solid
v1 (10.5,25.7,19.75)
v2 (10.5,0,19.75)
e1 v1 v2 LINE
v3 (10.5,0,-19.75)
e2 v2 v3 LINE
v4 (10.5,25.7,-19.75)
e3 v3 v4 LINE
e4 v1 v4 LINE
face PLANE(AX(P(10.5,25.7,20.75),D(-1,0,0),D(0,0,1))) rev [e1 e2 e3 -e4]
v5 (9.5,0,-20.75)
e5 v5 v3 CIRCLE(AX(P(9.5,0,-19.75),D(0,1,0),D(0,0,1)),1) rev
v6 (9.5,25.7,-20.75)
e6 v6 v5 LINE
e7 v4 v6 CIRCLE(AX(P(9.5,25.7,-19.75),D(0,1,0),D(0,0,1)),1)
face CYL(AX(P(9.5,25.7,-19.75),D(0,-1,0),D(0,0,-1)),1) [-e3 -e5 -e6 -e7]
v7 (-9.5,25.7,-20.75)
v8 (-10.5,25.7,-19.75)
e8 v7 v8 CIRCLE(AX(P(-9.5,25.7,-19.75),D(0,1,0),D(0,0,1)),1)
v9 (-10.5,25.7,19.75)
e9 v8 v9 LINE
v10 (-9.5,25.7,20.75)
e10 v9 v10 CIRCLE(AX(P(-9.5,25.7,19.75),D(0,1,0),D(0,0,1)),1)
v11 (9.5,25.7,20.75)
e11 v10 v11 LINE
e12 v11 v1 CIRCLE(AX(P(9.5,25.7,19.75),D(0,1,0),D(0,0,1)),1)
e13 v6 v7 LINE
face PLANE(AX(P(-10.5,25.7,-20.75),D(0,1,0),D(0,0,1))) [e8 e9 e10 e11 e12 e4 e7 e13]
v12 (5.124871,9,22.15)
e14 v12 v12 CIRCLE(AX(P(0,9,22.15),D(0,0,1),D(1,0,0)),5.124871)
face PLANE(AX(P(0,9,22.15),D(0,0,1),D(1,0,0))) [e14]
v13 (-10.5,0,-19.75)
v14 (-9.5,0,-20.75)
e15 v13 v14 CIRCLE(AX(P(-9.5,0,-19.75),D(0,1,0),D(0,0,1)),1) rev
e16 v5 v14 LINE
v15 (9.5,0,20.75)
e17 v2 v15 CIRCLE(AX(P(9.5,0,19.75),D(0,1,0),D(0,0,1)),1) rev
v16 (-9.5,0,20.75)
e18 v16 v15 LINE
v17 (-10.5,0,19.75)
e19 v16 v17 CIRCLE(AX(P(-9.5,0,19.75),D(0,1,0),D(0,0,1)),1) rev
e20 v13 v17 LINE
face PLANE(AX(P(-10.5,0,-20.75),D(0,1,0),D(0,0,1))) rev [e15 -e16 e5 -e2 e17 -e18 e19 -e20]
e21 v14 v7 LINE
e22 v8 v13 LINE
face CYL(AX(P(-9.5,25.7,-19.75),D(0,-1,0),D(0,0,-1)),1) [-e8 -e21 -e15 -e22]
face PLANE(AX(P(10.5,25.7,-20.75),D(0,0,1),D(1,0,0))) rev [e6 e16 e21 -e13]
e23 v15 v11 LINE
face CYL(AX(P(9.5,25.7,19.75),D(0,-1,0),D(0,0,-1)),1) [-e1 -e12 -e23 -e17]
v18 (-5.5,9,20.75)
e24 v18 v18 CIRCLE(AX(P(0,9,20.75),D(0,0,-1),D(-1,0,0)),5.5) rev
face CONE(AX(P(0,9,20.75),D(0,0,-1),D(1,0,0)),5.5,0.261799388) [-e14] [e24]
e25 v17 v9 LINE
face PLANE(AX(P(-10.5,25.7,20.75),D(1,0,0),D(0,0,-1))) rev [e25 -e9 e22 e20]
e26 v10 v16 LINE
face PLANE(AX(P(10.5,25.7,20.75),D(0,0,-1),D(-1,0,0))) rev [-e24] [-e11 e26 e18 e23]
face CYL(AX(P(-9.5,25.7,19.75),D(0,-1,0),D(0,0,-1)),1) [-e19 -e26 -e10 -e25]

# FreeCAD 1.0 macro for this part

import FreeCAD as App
import Part
import Sketcher
Q = App.Units.Quantity


def edges_at(feature, points):
    """Names of the edges that pass closest to the given points."""
    edges = feature.Shape.Edges
    near = lambda p: min(range(len(edges)), key=lambda i: edges[i].distToShape(Part.Vertex(*p))[0])
    return sorted({f"Edge{near(p) + 1}" for p in points})


def add_polygon(sketch, points):
    """Adds a closed chain of lines whose ends are joined by coincident constraints."""
    first, n = sketch.GeometryCount, len(points)
    for a, b in zip(points, points[1:] + points[:1]):
        sketch.addGeometry(Part.LineSegment(App.Vector(*a, 0), App.Vector(*b, 0)), False)
    for i in range(n):
        sketch.addConstraint(Sketcher.Constraint("Coincident", first + i, 2, first + (i + 1) % n, 1))

doc = App.newDocument("Part")
body = doc.addObject("PartDesign::Body", "Body")

# Sketch on XZ plane
sketch1 = body.newObject("Sketcher::SketchObject", "Sketch")
sketch1.AttachmentSupport = (doc.getObject("XZ_Plane"), [""])
sketch1.MapMode = "FlatFace"
add_polygon(sketch1, [(-10, -21), (-10, 21), (10, 21), (10, -21)])  # lines 0-3
sketch1.addConstraint(Sketcher.Constraint("Vertical", 0))
sketch1.addConstraint(Sketcher.Constraint("Horizontal", 1))
sketch1.addConstraint(Sketcher.Constraint("Vertical", 2))
sketch1.addConstraint(Sketcher.Constraint("Horizontal", 3))
sketch1.addConstraint(Sketcher.Constraint("Symmetric", 0, 2, 2, 2, -1, 1))
sketch1.addConstraint(Sketcher.Constraint("DistanceX", 1, 1, 1, 2, Q("21 mm")))
sketch1.addConstraint(Sketcher.Constraint("DistanceY", 0, 1, 0, 2, Q("41.5 mm")))
pad1 = body.newObject("PartDesign::Pad", "Pad")
pad1.Profile = sketch1
pad1.Length = 25.7
pad1.Reversed = True
doc.recompute()

fillet = body.newObject("PartDesign::Fillet", "Fillet")
fillet.Base = (pad1, edges_at(pad1, [
    (-10.5, 12.85, -20.75),
    (10.5, 12.85, -20.75),
    (10.5, 12.85, 20.75),
    (-10.5, 12.85, 20.75),
]))
fillet.Radius = 1

# Sketch on XY plane
sketch2 = body.newObject("Sketcher::SketchObject", "Sketch001")
sketch2.AttachmentSupport = (doc.getObject("XY_Plane"), [""])
sketch2.MapMode = "FlatFace"
sketch2.AttachmentOffset = App.Placement(App.Vector(0, 0, 20.75), App.Rotation())
sketch2.addGeometry(Part.Circle(App.Vector(0, 9, 0), App.Vector(0, 0, 1), 6), False)
sketch2.addConstraint(Sketcher.Constraint("PointOnObject", 0, 3, -2))
sketch2.addConstraint(Sketcher.Constraint("Diameter", 0, Q("11 mm")))
sketch2.addConstraint(Sketcher.Constraint("DistanceY", -1, 1, 0, 3, Q("9 mm")))
pad2 = body.newObject("PartDesign::Pad", "Pad001")
pad2.Profile = sketch2
pad2.Length = 1.4
pad2.TaperAngle = -15

doc.recompute()
